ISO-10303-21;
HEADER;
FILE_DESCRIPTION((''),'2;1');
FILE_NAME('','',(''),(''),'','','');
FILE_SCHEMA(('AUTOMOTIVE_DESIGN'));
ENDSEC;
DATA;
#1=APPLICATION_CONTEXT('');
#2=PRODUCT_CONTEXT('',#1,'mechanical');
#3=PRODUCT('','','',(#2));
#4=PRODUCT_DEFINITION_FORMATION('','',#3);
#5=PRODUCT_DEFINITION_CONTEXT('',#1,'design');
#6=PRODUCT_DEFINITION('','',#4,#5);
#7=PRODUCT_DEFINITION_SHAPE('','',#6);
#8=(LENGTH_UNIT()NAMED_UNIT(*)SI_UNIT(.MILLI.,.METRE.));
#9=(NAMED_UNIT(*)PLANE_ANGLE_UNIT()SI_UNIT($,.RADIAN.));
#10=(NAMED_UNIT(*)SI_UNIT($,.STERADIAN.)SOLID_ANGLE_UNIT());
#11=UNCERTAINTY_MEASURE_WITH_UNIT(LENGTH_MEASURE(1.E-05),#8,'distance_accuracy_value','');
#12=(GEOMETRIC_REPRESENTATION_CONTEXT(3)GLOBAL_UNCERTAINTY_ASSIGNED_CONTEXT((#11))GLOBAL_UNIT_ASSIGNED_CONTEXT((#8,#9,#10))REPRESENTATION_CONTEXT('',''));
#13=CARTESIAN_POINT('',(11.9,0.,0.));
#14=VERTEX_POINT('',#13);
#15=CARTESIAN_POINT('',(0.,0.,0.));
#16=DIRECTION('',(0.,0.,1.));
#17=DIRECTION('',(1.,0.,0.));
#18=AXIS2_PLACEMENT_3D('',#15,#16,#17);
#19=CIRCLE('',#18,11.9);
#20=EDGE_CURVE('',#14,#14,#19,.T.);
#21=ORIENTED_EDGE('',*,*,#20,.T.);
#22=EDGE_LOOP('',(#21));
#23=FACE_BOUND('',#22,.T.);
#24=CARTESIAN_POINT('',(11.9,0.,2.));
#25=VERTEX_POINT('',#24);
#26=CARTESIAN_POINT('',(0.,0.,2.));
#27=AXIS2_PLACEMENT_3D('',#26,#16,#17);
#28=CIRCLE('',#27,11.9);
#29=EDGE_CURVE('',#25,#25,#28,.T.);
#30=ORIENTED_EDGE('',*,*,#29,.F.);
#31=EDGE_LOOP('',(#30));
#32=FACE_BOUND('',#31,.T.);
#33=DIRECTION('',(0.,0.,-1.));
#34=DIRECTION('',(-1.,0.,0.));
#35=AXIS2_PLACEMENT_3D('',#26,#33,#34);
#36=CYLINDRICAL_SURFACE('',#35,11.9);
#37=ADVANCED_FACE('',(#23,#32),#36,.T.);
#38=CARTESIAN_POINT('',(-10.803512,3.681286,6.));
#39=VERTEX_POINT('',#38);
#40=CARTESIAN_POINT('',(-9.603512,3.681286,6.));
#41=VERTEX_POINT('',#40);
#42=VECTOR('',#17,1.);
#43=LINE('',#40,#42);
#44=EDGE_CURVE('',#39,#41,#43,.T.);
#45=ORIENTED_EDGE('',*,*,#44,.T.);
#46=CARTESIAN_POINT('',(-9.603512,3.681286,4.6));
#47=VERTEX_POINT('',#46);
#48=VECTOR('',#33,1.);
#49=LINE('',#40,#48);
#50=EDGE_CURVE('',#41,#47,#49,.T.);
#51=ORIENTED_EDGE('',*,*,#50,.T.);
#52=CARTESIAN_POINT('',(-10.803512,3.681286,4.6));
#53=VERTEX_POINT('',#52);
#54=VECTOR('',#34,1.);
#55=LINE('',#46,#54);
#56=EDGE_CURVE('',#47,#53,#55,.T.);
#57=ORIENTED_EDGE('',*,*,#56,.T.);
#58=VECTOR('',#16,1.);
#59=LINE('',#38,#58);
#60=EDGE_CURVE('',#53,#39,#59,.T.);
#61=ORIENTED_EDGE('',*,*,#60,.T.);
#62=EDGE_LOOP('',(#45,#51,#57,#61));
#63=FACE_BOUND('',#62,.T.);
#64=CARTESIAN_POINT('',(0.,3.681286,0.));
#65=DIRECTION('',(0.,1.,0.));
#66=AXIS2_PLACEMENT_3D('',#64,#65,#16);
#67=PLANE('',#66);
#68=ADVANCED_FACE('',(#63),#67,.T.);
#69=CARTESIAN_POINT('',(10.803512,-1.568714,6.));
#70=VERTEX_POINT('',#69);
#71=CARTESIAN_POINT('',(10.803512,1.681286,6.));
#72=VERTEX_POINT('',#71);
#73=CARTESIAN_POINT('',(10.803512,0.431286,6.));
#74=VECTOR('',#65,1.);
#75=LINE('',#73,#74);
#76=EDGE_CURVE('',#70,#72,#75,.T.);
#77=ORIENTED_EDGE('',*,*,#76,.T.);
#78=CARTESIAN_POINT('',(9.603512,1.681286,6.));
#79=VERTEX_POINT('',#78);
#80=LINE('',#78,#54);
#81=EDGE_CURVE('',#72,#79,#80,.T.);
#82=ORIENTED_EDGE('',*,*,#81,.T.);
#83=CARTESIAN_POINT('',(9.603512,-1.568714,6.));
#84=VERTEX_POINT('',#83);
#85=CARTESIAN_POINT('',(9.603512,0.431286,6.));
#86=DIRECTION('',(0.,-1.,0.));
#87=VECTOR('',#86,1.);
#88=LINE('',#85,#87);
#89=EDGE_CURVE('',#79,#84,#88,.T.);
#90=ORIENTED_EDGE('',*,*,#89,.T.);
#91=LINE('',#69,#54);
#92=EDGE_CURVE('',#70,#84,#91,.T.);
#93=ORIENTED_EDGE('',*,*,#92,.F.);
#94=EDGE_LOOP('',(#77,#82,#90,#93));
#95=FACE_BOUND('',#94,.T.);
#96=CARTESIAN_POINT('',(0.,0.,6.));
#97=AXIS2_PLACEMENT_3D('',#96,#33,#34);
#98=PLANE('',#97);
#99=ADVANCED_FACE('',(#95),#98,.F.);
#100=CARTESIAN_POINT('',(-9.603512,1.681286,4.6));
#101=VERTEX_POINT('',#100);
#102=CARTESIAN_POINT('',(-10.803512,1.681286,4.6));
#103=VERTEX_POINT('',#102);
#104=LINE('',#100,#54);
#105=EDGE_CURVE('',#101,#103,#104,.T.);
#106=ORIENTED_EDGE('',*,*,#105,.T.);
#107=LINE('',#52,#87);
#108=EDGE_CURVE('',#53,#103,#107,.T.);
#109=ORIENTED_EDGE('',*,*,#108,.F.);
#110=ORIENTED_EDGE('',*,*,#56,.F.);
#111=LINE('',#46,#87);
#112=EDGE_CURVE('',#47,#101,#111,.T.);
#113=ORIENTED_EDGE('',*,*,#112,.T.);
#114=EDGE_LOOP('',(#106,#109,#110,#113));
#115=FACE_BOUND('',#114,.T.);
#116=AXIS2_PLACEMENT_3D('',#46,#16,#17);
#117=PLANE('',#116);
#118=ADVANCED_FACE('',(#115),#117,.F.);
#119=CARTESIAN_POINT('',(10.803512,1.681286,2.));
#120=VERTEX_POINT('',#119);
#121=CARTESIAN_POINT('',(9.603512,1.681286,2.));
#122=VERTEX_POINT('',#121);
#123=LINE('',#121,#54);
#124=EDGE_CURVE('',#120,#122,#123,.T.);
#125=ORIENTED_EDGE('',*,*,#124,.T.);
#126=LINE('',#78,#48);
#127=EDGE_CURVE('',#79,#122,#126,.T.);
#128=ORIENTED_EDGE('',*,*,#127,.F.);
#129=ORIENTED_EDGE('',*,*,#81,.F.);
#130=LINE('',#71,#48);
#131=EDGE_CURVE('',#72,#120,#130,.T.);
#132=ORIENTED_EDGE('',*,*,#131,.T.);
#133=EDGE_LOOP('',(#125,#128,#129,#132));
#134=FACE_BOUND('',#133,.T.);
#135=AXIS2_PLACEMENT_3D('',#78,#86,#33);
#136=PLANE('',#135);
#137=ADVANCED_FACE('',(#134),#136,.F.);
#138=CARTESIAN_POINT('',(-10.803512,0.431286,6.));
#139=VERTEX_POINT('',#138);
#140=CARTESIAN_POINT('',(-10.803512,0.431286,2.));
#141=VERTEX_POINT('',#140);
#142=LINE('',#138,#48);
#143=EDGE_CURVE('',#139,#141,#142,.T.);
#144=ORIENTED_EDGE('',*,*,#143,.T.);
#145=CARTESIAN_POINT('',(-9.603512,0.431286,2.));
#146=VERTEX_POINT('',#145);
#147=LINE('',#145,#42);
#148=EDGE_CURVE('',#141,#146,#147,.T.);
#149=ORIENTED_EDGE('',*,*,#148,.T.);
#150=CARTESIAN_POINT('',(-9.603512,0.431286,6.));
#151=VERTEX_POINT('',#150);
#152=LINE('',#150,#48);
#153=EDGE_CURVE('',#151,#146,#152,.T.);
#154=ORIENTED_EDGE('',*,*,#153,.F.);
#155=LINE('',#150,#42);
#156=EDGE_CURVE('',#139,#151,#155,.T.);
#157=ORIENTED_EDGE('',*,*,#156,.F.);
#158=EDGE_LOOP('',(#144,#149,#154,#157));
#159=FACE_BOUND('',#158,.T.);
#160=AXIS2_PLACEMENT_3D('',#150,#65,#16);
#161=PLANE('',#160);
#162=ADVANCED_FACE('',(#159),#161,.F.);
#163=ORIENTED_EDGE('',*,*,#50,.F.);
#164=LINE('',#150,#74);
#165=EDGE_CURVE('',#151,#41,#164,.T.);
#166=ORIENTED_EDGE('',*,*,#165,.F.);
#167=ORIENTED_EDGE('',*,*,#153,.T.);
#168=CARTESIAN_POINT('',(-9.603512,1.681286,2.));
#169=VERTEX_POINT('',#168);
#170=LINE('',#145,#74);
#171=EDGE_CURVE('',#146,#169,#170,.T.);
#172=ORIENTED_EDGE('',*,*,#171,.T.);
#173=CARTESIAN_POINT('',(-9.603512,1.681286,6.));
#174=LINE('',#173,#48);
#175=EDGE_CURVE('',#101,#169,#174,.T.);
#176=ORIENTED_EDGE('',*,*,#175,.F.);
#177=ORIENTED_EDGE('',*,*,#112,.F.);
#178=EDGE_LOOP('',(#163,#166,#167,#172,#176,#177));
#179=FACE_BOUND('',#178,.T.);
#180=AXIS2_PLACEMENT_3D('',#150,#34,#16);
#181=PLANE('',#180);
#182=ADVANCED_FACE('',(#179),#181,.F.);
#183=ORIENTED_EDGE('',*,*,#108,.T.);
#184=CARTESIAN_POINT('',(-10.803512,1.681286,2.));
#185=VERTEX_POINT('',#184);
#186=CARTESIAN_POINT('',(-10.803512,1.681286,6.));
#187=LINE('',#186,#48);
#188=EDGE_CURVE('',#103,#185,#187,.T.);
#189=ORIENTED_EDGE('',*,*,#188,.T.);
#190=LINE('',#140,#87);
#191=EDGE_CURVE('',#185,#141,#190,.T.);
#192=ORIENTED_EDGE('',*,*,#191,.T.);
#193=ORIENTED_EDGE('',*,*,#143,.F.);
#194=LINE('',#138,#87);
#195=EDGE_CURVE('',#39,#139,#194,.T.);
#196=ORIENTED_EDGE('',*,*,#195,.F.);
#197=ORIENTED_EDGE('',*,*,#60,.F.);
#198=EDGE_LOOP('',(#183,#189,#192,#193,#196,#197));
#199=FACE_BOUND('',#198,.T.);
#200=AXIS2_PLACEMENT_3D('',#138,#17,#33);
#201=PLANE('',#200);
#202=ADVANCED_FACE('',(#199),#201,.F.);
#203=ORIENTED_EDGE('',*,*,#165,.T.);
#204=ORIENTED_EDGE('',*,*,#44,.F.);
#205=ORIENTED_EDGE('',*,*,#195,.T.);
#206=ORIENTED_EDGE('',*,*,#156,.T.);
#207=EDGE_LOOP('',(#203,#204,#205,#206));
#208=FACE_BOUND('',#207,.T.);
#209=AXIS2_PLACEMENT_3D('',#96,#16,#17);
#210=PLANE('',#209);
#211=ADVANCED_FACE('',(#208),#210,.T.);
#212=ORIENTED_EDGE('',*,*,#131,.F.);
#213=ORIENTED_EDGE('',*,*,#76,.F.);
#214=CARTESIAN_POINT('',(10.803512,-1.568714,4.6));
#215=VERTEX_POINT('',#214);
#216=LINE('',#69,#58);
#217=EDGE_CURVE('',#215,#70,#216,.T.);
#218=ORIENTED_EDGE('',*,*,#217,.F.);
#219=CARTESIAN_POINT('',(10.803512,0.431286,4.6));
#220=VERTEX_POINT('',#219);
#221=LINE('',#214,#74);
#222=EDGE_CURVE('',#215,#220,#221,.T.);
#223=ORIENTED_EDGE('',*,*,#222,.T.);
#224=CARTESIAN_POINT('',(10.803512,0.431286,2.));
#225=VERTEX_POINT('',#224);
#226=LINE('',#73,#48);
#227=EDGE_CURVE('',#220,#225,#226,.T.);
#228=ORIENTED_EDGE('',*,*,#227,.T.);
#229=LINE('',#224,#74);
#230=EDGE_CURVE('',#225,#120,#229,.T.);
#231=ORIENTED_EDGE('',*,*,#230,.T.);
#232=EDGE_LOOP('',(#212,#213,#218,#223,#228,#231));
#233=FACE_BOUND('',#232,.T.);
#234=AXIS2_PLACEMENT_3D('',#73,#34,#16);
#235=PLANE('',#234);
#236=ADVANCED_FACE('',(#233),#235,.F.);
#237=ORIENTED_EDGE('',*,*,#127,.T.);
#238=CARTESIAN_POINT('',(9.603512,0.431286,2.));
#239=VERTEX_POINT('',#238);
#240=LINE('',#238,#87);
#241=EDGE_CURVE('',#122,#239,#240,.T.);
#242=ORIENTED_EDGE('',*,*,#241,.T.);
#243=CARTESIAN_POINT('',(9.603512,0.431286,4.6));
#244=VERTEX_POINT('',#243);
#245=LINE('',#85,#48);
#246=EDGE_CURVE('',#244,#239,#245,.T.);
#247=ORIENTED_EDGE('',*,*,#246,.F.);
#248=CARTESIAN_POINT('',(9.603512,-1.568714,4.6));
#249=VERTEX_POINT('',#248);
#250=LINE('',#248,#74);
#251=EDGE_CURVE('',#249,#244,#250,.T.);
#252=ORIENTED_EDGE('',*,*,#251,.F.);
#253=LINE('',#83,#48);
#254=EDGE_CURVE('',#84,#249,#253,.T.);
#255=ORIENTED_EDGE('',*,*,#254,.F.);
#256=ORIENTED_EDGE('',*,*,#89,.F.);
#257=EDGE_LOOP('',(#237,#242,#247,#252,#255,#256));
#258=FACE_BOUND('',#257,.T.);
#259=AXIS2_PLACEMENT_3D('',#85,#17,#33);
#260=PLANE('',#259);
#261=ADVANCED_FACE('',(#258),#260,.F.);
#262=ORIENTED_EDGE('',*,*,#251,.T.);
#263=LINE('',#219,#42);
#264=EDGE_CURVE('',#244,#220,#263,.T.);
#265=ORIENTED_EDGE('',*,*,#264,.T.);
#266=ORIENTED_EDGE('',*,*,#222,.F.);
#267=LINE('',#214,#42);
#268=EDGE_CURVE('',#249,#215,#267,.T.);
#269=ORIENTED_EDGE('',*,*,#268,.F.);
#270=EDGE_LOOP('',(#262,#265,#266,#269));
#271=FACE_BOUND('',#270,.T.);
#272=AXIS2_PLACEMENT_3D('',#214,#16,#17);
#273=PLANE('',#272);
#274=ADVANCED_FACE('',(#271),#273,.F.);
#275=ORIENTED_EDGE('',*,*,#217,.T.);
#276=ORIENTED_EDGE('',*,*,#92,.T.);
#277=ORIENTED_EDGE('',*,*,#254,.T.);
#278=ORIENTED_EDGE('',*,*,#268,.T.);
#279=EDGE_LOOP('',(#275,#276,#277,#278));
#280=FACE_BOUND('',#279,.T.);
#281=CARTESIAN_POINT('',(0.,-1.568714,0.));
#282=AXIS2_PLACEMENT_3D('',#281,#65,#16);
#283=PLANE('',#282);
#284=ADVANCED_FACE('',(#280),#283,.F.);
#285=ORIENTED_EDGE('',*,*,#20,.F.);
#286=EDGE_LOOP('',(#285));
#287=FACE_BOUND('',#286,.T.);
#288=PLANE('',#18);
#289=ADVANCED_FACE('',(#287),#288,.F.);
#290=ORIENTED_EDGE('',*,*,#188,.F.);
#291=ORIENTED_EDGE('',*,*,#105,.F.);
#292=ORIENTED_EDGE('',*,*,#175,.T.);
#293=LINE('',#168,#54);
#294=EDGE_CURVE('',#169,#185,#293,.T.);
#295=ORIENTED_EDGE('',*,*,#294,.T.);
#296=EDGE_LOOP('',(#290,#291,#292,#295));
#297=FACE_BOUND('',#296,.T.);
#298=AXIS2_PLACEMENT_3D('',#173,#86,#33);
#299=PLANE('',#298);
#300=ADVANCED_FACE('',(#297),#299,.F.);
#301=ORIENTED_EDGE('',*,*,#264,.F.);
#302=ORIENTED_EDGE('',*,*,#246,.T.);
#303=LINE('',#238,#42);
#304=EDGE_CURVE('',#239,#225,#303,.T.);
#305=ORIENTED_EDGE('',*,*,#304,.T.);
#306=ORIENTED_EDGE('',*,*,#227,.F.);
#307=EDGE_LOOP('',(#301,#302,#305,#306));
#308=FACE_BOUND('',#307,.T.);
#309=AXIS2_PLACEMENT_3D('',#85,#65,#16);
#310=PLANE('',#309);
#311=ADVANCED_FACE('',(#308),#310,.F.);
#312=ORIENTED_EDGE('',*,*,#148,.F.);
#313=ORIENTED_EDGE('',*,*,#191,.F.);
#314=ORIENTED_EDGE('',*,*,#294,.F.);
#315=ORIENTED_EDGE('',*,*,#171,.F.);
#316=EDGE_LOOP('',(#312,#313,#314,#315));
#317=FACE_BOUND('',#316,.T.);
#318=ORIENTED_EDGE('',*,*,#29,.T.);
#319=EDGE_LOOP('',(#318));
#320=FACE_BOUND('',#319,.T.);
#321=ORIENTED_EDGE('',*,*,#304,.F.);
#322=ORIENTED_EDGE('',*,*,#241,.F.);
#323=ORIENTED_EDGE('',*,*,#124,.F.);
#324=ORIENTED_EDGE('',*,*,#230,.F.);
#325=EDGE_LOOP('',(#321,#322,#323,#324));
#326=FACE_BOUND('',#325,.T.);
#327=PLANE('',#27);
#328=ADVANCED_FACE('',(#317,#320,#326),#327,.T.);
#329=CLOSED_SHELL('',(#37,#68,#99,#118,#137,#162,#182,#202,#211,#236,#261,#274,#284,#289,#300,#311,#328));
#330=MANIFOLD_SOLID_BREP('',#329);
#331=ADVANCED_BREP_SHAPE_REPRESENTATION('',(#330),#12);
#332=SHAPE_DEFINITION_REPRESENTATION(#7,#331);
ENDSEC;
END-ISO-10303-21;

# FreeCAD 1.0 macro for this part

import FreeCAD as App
import Part
import Sketcher

doc = App.newDocument("Part")
body = doc.addObject("PartDesign::Body", "Body")

sketch1 = body.newObject("Sketcher::SketchObject", "Sketch")
sketch1.AttachmentSupport = (doc.getObject("XY_Plane"), [""])
sketch1.MapMode = "FlatFace"
sketch1.addGeometry(Part.Circle(App.Vector(0, 0, 0), App.Vector(0, 0, 1), 12), False)
sketch1.addConstraint(Sketcher.Constraint("Coincident", 0, 3, -1, 1))
sketch1.addConstraint(Sketcher.Constraint("Diameter", 0, 23.8))
pad1 = body.newObject("PartDesign::Pad", "Pad")
pad1.Profile = sketch1
pad1.Length = 2

sketch2 = body.newObject("Sketcher::SketchObject", "Sketch001")
sketch2.AttachmentSupport = (doc.getObject("XY_Plane"), [""])
sketch2.MapMode = "FlatFace"
sketch2.AttachmentOffset = App.Placement(App.Vector(0, 0, 2), App.Rotation())
sketch2.addGeometry(Part.LineSegment(App.Vector(9.6, 1.7, 0), App.Vector(9.6, 0.4, 0)), False)
sketch2.addGeometry(Part.LineSegment(App.Vector(9.6, 0.4, 0), App.Vector(10.8, 0.4, 0)), False)
sketch2.addGeometry(Part.LineSegment(App.Vector(10.8, 0.4, 0), App.Vector(10.8, 1.7, 0)), False)
sketch2.addGeometry(Part.LineSegment(App.Vector(10.8, 1.7, 0), App.Vector(9.6, 1.7, 0)), False)
sketch2.addGeometry(Part.LineSegment(App.Vector(-10.8, 1.7, 0), App.Vector(-10.8, 0.4, 0)), False)
sketch2.addGeometry(Part.LineSegment(App.Vector(-10.8, 0.4, 0), App.Vector(-9.6, 0.4, 0)), False)
sketch2.addGeometry(Part.LineSegment(App.Vector(-9.6, 0.4, 0), App.Vector(-9.6, 1.7, 0)), False)
sketch2.addGeometry(Part.LineSegment(App.Vector(-9.6, 1.7, 0), App.Vector(-10.8, 1.7, 0)), False)
sketch2.addConstraint(Sketcher.Constraint("Coincident", 0, 2, 1, 1))
sketch2.addConstraint(Sketcher.Constraint("Coincident", 1, 2, 2, 1))
sketch2.addConstraint(Sketcher.Constraint("Coincident", 2, 2, 3, 1))
sketch2.addConstraint(Sketcher.Constraint("Coincident", 3, 2, 0, 1))
sketch2.addConstraint(Sketcher.Constraint("Coincident", 4, 2, 5, 1))
sketch2.addConstraint(Sketcher.Constraint("Coincident", 5, 2, 6, 1))
sketch2.addConstraint(Sketcher.Constraint("Coincident", 6, 2, 7, 1))
sketch2.addConstraint(Sketcher.Constraint("Coincident", 7, 2, 4, 1))
sketch2.addConstraint(Sketcher.Constraint("Vertical", 0))
sketch2.addConstraint(Sketcher.Constraint("Horizontal", 1))
sketch2.addConstraint(Sketcher.Constraint("Vertical", 2))
sketch2.addConstraint(Sketcher.Constraint("Horizontal", 3))
sketch2.addConstraint(Sketcher.Constraint("Vertical", 4))
sketch2.addConstraint(Sketcher.Constraint("Horizontal", 5))
sketch2.addConstraint(Sketcher.Constraint("Vertical", 6))
sketch2.addConstraint(Sketcher.Constraint("Horizontal", 7))
sketch2.addConstraint(Sketcher.Constraint("Symmetric", 1, 2, 4, 2, -2))
sketch2.addConstraint(Sketcher.Constraint("Symmetric", 3, 2, 6, 2, -2))
sketch2.addConstraint(Sketcher.Constraint("DistanceX", 1, 1, 1, 2, 1.2))
sketch2.addConstraint(Sketcher.Constraint("DistanceY", 0, 2, 0, 1, 1.25))
sketch2.addConstraint(Sketcher.Constraint("DistanceX", -1, 1, 0, 2, 9.603512))
sketch2.addConstraint(Sketcher.Constraint("DistanceY", -1, 1, 0, 2, 0.431286))
pad2 = body.newObject("PartDesign::Pad", "Pad001")
pad2.Profile = sketch2
pad2.Length = 4

sketch3 = body.newObject("Sketcher::SketchObject", "Sketch002")
sketch3.AttachmentSupport = (doc.getObject("XZ_Plane"), [""])
sketch3.MapMode = "FlatFace"
sketch3.AttachmentOffset = App.Placement(App.Vector(0, 0, -1.681286), App.Rotation())
sketch3.addGeometry(Part.LineSegment(App.Vector(-10.8, 4.6, 0), App.Vector(-10.8, 6, 0)), False)
sketch3.addGeometry(Part.LineSegment(App.Vector(-10.8, 6, 0), App.Vector(-9.6, 6, 0)), False)
sketch3.addGeometry(Part.LineSegment(App.Vector(-9.6, 6, 0), App.Vector(-9.6, 4.6, 0)), False)
sketch3.addGeometry(Part.LineSegment(App.Vector(-9.6, 4.6, 0), App.Vector(-10.8, 4.6, 0)), False)
sketch3.addConstraint(Sketcher.Constraint("Coincident", 0, 2, 1, 1))
sketch3.addConstraint(Sketcher.Constraint("Coincident", 1, 2, 2, 1))
sketch3.addConstraint(Sketcher.Constraint("Coincident", 2, 2, 3, 1))
sketch3.addConstraint(Sketcher.Constraint("Coincident", 3, 2, 0, 1))
sketch3.addConstraint(Sketcher.Constraint("Vertical", 0))
sketch3.addConstraint(Sketcher.Constraint("Horizontal", 1))
sketch3.addConstraint(Sketcher.Constraint("Vertical", 2))
sketch3.addConstraint(Sketcher.Constraint("Horizontal", 3))
sketch3.addConstraint(Sketcher.Constraint("DistanceX", 1, 1, 1, 2, 1.2))
sketch3.addConstraint(Sketcher.Constraint("DistanceY", 0, 1, 0, 2, 1.4))
sketch3.addConstraint(Sketcher.Constraint("DistanceY", -1, 1, 0, 2, 6.0))
sketch3.addConstraint(Sketcher.Constraint("DistanceX", 0, 2, -1, 1, 10.803512))
pad3 = body.newObject("PartDesign::Pad", "Pad002")
pad3.Profile = sketch3
pad3.Length = 2
pad3.Reversed = True

sketch4 = body.newObject("Sketcher::SketchObject", "Sketch003")
sketch4.AttachmentSupport = (doc.getObject("XZ_Plane"), [""])
sketch4.MapMode = "FlatFace"
sketch4.AttachmentOffset = App.Placement(App.Vector(0, 0, -0.431286), App.Rotation())
sketch4.addGeometry(Part.LineSegment(App.Vector(9.6, 6, 0), App.Vector(9.6, 4.6, 0)), False)
sketch4.addGeometry(Part.LineSegment(App.Vector(9.6, 4.6, 0), App.Vector(10.8, 4.6, 0)), False)
sketch4.addGeometry(Part.LineSegment(App.Vector(10.8, 4.6, 0), App.Vector(10.8, 6, 0)), False)
sketch4.addGeometry(Part.LineSegment(App.Vector(10.8, 6, 0), App.Vector(9.6, 6, 0)), False)
sketch4.addConstraint(Sketcher.Constraint("Coincident", 0, 2, 1, 1))
sketch4.addConstraint(Sketcher.Constraint("Coincident", 1, 2, 2, 1))
sketch4.addConstraint(Sketcher.Constraint("Coincident", 2, 2, 3, 1))
sketch4.addConstraint(Sketcher.Constraint("Coincident", 3, 2, 0, 1))
sketch4.addConstraint(Sketcher.Constraint("Vertical", 0))
sketch4.addConstraint(Sketcher.Constraint("Horizontal", 1))
sketch4.addConstraint(Sketcher.Constraint("Vertical", 2))
sketch4.addConstraint(Sketcher.Constraint("Horizontal", 3))
sketch4.addConstraint(Sketcher.Constraint("DistanceX", 1, 1, 1, 2, 1.2))
sketch4.addConstraint(Sketcher.Constraint("DistanceY", 0, 2, 0, 1, 1.4))
sketch4.addConstraint(Sketcher.Constraint("DistanceY", -1, 1, 2, 2, 6.0))
sketch4.addConstraint(Sketcher.Constraint("DistanceX", -1, 1, 0, 2, 9.603512))
pad4 = body.newObject("PartDesign::Pad", "Pad003")
pad4.Profile = sketch4
pad4.Length = 2

doc.recompute()
